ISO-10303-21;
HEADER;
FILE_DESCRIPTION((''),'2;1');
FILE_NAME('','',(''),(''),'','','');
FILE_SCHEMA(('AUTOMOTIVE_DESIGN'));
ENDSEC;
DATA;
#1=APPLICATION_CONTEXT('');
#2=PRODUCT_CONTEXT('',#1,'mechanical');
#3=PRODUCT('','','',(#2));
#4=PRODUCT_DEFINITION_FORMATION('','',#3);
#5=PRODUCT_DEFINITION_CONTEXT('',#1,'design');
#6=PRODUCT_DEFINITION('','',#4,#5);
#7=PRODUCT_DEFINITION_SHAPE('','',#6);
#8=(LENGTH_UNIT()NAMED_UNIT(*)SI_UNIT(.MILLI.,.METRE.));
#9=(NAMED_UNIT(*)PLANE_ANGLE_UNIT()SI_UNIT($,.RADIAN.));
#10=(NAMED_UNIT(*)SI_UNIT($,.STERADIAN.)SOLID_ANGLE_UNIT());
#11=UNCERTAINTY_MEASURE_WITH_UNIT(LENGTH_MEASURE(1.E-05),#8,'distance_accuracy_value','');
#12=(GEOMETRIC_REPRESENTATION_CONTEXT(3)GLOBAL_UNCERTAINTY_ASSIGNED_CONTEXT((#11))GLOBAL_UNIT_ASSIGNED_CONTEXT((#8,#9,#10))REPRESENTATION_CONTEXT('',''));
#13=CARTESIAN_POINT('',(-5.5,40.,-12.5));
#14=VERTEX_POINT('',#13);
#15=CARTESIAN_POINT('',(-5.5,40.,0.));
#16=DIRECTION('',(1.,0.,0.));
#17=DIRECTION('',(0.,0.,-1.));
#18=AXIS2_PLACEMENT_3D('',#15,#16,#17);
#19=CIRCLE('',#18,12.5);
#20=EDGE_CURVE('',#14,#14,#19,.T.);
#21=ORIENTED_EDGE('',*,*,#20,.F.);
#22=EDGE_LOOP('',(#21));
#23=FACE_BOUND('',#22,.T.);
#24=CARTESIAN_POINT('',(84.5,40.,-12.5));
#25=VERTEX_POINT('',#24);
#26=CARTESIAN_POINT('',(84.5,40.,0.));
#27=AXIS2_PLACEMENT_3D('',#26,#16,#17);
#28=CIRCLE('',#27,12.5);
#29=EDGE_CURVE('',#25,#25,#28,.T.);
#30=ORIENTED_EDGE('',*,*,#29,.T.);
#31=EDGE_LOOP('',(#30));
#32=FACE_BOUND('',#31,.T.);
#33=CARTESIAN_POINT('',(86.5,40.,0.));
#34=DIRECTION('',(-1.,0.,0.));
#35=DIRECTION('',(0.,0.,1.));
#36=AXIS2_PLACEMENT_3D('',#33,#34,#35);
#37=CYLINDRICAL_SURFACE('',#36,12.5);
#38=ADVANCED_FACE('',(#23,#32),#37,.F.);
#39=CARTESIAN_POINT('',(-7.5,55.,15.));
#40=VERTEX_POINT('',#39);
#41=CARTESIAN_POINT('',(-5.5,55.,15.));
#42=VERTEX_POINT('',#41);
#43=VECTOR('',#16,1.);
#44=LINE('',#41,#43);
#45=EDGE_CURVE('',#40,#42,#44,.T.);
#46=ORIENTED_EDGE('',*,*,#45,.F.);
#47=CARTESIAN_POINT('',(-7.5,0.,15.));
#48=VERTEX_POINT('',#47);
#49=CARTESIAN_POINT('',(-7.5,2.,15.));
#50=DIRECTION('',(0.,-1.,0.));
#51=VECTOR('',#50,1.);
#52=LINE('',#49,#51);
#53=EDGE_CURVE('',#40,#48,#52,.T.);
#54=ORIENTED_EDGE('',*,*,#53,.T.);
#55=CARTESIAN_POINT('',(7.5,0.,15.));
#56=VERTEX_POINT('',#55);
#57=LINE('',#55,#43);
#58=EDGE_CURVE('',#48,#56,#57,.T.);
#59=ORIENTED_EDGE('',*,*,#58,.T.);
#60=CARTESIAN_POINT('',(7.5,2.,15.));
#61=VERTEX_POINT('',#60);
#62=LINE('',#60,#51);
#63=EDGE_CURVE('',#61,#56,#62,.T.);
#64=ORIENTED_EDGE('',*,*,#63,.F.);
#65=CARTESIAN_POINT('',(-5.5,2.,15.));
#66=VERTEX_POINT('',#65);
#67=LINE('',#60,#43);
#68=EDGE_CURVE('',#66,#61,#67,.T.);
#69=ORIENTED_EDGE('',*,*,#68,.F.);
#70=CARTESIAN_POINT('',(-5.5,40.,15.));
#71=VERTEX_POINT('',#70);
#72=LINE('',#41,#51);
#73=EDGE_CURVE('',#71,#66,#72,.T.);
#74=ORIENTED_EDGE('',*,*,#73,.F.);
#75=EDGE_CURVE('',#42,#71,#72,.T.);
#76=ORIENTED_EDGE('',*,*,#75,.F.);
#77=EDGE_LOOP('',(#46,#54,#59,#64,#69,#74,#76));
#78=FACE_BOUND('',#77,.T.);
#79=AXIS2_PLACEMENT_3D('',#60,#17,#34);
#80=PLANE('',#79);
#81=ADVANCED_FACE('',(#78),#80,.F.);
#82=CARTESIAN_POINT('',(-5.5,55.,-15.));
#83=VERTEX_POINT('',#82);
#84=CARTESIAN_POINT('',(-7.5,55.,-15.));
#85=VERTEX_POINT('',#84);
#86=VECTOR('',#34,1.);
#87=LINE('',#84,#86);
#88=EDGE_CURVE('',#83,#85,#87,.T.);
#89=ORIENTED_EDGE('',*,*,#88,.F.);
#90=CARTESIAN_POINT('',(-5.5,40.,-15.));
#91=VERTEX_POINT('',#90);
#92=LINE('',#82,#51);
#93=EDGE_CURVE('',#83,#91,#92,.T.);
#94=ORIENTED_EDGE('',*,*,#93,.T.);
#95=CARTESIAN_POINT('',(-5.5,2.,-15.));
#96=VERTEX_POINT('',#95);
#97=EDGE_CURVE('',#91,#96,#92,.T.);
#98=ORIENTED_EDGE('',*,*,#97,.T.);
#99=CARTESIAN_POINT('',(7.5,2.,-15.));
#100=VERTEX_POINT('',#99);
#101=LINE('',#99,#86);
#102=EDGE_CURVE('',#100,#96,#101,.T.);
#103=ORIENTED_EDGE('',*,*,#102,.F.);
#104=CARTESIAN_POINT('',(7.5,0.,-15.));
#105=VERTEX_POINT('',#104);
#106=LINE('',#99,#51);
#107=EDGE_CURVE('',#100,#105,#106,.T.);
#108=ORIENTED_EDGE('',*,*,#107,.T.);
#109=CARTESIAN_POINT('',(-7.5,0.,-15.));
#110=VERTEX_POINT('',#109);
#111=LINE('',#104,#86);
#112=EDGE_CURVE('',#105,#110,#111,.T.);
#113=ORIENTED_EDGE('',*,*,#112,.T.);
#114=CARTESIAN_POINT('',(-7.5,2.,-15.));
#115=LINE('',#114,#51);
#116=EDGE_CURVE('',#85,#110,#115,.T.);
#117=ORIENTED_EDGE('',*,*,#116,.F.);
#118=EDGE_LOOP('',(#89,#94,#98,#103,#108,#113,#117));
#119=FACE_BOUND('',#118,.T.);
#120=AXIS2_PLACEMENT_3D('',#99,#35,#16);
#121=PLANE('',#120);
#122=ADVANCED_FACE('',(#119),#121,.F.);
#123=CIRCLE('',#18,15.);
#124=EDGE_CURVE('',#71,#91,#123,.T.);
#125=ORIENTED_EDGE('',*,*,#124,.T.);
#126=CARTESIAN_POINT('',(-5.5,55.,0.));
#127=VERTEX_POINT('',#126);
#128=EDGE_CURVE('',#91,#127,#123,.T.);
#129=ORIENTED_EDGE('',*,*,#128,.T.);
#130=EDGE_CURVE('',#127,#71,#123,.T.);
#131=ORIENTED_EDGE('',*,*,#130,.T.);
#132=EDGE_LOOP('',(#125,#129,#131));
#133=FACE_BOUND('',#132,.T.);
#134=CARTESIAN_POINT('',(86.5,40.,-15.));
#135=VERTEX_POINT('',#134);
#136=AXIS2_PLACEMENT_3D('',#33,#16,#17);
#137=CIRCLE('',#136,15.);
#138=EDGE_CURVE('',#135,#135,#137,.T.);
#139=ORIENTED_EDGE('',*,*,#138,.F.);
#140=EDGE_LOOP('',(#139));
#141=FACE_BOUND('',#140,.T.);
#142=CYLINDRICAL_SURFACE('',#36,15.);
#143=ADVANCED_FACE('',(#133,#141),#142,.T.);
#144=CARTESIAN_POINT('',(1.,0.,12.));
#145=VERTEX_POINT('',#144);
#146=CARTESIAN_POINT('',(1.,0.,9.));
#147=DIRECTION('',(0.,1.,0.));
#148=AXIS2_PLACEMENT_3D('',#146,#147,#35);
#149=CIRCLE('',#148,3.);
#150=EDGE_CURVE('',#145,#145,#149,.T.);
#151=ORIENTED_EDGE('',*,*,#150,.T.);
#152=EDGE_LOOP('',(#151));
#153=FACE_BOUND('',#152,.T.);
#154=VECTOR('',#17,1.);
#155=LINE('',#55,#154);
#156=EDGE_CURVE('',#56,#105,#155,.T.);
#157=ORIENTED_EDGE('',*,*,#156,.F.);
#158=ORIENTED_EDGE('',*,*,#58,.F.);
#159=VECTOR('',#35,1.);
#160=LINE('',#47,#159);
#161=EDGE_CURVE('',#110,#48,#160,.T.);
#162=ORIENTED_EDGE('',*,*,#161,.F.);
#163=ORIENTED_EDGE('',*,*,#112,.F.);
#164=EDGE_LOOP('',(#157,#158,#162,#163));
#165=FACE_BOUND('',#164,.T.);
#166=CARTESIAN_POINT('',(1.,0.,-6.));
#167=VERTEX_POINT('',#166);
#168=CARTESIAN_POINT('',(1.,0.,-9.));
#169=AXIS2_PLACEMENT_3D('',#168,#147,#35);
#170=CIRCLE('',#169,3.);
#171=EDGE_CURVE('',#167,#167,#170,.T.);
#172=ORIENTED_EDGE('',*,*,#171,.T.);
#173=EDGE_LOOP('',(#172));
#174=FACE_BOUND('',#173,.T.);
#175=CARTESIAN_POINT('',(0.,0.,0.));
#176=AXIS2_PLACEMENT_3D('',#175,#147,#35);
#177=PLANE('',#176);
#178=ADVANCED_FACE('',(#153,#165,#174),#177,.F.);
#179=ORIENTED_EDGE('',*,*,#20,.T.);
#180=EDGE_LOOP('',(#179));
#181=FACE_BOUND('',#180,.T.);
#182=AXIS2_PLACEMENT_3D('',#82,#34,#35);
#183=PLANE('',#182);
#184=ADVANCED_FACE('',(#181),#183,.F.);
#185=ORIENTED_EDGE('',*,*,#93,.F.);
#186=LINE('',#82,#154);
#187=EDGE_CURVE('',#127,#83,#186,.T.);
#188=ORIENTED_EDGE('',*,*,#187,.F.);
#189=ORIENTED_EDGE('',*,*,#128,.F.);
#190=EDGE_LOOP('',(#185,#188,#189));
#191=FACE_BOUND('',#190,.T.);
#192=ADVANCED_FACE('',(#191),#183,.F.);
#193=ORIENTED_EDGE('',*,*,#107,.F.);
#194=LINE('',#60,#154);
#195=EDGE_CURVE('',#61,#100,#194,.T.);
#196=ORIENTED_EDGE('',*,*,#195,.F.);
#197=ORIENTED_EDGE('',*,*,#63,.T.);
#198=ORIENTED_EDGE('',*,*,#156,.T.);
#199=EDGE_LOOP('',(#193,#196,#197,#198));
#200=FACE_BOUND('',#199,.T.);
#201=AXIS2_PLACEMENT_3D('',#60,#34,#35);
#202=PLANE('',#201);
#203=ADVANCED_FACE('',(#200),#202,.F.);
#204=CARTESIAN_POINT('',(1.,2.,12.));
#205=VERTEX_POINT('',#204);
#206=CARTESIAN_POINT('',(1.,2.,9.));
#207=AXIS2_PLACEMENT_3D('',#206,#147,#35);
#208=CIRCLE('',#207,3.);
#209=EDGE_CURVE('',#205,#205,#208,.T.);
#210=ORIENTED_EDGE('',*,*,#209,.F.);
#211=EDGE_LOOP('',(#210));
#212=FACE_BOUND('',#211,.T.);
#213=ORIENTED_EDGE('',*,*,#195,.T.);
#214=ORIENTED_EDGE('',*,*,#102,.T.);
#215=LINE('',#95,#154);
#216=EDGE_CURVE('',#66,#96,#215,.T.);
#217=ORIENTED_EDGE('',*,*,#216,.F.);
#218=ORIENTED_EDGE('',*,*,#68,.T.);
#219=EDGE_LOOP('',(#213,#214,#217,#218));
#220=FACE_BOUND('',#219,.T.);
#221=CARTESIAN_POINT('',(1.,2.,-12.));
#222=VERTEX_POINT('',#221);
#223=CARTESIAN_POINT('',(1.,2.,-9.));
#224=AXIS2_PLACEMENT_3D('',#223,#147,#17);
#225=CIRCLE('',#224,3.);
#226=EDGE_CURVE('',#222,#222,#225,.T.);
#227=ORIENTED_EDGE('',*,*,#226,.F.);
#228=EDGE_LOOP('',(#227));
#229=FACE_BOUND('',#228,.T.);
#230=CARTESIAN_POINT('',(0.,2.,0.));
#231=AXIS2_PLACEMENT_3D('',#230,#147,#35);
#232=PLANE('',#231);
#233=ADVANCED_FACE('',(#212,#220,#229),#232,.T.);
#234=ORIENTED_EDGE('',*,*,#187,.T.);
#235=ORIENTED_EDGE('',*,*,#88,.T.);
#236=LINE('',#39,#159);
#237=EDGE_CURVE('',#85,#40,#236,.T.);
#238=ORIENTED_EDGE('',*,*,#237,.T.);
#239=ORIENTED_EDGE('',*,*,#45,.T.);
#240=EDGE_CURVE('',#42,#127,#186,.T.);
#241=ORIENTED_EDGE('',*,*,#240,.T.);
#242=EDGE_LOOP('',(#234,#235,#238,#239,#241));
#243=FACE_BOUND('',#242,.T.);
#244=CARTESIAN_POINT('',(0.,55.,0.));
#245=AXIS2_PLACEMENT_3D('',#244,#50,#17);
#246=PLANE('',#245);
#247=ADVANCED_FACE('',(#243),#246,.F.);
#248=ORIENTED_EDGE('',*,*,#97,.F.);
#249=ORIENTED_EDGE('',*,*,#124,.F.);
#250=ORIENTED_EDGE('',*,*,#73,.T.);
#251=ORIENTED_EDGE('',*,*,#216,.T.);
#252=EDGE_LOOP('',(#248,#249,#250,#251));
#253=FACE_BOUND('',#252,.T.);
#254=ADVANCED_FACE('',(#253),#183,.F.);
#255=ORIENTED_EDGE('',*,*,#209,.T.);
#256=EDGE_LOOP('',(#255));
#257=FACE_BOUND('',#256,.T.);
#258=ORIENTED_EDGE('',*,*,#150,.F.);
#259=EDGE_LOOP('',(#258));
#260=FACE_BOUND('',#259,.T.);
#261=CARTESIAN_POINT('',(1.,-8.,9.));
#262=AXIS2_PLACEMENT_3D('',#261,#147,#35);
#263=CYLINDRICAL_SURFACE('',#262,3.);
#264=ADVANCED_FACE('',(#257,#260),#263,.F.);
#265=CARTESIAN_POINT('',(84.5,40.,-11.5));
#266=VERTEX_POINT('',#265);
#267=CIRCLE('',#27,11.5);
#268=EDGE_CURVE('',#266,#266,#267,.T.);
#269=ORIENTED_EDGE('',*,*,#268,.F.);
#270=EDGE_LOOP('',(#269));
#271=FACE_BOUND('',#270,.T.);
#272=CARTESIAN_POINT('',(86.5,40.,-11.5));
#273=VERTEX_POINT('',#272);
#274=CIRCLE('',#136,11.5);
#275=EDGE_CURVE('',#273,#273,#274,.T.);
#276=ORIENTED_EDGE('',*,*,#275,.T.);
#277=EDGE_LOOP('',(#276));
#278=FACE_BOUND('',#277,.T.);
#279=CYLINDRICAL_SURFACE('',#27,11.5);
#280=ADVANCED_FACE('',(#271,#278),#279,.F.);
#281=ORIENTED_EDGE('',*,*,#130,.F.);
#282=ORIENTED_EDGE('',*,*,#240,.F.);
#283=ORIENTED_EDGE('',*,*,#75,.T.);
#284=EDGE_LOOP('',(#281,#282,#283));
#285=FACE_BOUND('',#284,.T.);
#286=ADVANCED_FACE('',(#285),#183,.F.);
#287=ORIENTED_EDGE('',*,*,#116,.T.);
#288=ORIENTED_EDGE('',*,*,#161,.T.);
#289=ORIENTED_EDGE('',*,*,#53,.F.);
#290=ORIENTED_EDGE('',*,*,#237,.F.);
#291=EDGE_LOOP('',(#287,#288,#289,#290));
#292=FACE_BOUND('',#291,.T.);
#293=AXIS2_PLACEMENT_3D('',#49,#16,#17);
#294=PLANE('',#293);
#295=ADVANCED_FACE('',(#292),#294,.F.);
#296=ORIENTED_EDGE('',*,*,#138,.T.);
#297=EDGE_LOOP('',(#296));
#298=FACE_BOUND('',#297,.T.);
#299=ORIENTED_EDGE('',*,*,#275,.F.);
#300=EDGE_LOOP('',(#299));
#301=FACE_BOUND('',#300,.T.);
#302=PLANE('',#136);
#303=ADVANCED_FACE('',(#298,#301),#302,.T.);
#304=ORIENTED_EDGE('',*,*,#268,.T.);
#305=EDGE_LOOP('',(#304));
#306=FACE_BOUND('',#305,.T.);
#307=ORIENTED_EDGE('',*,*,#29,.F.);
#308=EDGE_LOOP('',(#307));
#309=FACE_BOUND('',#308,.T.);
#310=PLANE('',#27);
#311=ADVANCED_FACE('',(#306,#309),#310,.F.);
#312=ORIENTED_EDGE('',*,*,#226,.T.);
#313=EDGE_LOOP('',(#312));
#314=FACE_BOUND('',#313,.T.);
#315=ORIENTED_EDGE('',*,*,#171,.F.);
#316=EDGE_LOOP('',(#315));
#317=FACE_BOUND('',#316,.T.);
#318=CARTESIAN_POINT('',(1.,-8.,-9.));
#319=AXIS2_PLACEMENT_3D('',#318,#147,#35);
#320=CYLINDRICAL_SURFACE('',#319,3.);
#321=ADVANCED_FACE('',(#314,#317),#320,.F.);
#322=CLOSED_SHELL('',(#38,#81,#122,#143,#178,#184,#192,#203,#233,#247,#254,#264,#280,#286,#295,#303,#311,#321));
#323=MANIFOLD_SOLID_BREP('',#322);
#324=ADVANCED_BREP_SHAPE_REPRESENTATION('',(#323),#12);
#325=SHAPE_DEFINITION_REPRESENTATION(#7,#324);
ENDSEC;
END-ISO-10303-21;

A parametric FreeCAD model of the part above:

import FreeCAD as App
import Part
import Sketcher

V = App.Vector
Q = App.Units.Quantity


def add_polygon(sketch, points):
    """Adds a closed chain of lines whose ends are joined by coincident constraints."""
    first, n = sketch.GeometryCount, len(points)
    for a, b in zip(points, points[1:] + points[:1]):
        sketch.addGeometry(Part.LineSegment(App.Vector(*a, 0), App.Vector(*b, 0)), False)
    for i in range(n):
        sketch.addConstraint(Sketcher.Constraint("Coincident", first + i, 2, first + (i + 1) % n, 1))

doc = App.newDocument("Part")
body = doc.addObject("PartDesign::Body", "Body")

sketch1 = body.newObject("Sketcher::SketchObject", "Sketch")
sketch1.AttachmentSupport = (doc.getObject("XZ_Plane"), [""])
sketch1.MapMode = "FlatFace"
add_polygon(sketch1, [(-8, -15), (-8, 15), (8, 15), (8, -15)])
sketch1.addConstraint([
    Sketcher.Constraint("Vertical", 0),
    Sketcher.Constraint("Horizontal", 1),
    Sketcher.Constraint("Vertical", 2),
    Sketcher.Constraint("Horizontal", 3),
    Sketcher.Constraint("Symmetric", 0, 2, 2, 2, -1, 1),
    Sketcher.Constraint("DistanceX", 1, 1, 1, 2, Q("15 mm")),
    Sketcher.Constraint("DistanceY", 0, 1, 0, 2, Q("30 mm")),
])
pad1 = body.newObject("PartDesign::Pad", "Pad")
pad1.Profile = sketch1
pad1.Length = 2
pad1.Reversed = True

sketch2 = body.newObject("Sketcher::SketchObject", "Sketch001")
sketch2.AttachmentSupport = (doc.getObject("XZ_Plane"), [""])
sketch2.MapMode = "FlatFace"
sketch2.AttachmentOffset = App.Placement(V(0, 0, -2), App.Rotation())
add_polygon(sketch2, [(-7.5, -15), (-7.5, 15), (-5.5, 15), (-5.5, -15)])
sketch2.addConstraint([
    Sketcher.Constraint("Vertical", 0),
    Sketcher.Constraint("Horizontal", 1),
    Sketcher.Constraint("Vertical", 2),
    Sketcher.Constraint("Horizontal", 3),
    Sketcher.Constraint("DistanceX", 1, 1, 1, 2, Q("2 mm")),
    Sketcher.Constraint("DistanceY", 0, 1, 0, 2, Q("30 mm")),
    Sketcher.Constraint("DistanceY", -1, 1, 0, 2, Q("15 mm")),
    Sketcher.Constraint("DistanceX", 0, 2, -1, 1, Q("7.5 mm")),
])
pad2 = body.newObject("PartDesign::Pad", "Pad001")
pad2.Profile = sketch2
pad2.Length = 53
pad2.Reversed = True

sketch3 = body.newObject("Sketcher::SketchObject", "Sketch002")
sketch3.AttachmentSupport = (doc.getObject("YZ_Plane"), [""])
sketch3.MapMode = "FlatFace"
sketch3.AttachmentOffset = App.Placement(V(0, 0, -5.5), App.Rotation())
sketch3.addGeometry([
    Part.Circle(V(40, 0, 0), V(0, 0, 1), 15),
    Part.Circle(V(40, 0, 0), V(0, 0, 1), 12),
], False)
sketch3.addConstraint([
    Sketcher.Constraint("Coincident", 1, 3, 0, 3),
    Sketcher.Constraint("PointOnObject", 0, 3, -1),
    Sketcher.Constraint("Diameter", 0, Q("30 mm")),
    Sketcher.Constraint("Diameter", 1, Q("25 mm")),
    Sketcher.Constraint("DistanceX", -1, 1, 0, 3, Q("40 mm")),
])
pad3 = body.newObject("PartDesign::Pad", "Pad002")
pad3.Profile = sketch3
pad3.Length = 92

sketch4 = body.newObject("Sketcher::SketchObject", "Sketch003")
sketch4.AttachmentSupport = (doc.getObject("YZ_Plane"), [""])
sketch4.MapMode = "FlatFace"
sketch4.AttachmentOffset = App.Placement(V(0, 0, 84.5), App.Rotation())
sketch4.addGeometry([
    Part.Circle(V(40, 0, 0), V(0, 0, 1), 12),
    Part.Circle(V(40, 0, 0), V(0, 0, 1), 12),
], False)
sketch4.addConstraint([
    Sketcher.Constraint("Coincident", 1, 3, 0, 3),
    Sketcher.Constraint("PointOnObject", 0, 3, -1),
    Sketcher.Constraint("Diameter", 0, Q("25 mm")),
    Sketcher.Constraint("Diameter", 1, Q("23 mm")),
    Sketcher.Constraint("DistanceX", -1, 1, 0, 3, Q("40 mm")),
])
pad4 = body.newObject("PartDesign::Pad", "Pad003")
pad4.Profile = sketch4
pad4.Length = 2

sketch5 = body.newObject("Sketcher::SketchObject", "Sketch004")
sketch5.AttachmentSupport = (doc.getObject("XZ_Plane"), [""])
sketch5.MapMode = "FlatFace"
sketch5.AttachmentOffset = App.Placement(V(0, 0, -2), App.Rotation())
sketch5.addGeometry([
    Part.Circle(V(1, 9, 0), V(0, 0, 1), 3),
    Part.Circle(V(1, -9, 0), V(0, 0, 1), 3),
], False)
sketch5.addConstraint([
    Sketcher.Constraint("Equal", 0, 1),
    Sketcher.Constraint("Symmetric", 0, 3, 1, 3, -1),
    Sketcher.Constraint("Diameter", 0, Q("6 mm")),
    Sketcher.Constraint("DistanceX", -1, 1, 0, 3, Q("1 mm")),
    Sketcher.Constraint("DistanceY", -1, 1, 0, 3, Q("9 mm")),
])
pocket1 = body.newObject("PartDesign::Pocket", "Pocket")
pocket1.Profile = sketch5
pocket1.Length = 10
pocket1.Reversed = True

doc.recompute()
